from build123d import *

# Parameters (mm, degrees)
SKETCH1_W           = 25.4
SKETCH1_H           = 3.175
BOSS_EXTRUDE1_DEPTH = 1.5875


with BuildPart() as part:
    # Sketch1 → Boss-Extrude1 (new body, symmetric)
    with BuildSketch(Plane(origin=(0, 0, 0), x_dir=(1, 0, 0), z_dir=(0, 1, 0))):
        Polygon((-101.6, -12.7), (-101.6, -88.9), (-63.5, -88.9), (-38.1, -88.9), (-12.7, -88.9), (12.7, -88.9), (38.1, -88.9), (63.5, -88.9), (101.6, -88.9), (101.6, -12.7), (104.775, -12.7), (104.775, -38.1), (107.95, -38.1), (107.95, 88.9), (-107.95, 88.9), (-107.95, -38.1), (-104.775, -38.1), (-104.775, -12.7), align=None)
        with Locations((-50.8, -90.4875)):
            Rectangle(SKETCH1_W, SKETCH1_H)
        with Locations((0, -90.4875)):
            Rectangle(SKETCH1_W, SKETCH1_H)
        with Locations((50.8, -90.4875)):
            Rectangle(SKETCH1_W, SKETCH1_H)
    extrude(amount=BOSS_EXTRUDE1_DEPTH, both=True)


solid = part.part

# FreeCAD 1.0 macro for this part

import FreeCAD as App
import Part
import Sketcher
Q = App.Units.Quantity

doc = App.newDocument("Part")
body = doc.addObject("PartDesign::Body", "Body")

# Sketch on XZ plane
sketch1 = body.newObject("Sketcher::SketchObject", "Sketch")
sketch1.AttachmentSupport = (doc.getObject("XZ_Plane"), [""])
sketch1.MapMode = "FlatFace"
sketch1.addGeometry(Part.LineSegment(App.Vector(-101.6, 12.7, 0), App.Vector(-101.6, 88.9, 0)), False)
sketch1.addGeometry(Part.LineSegment(App.Vector(-101.6, 88.9, 0), App.Vector(-63.5, 88.9, 0)), False)
sketch1.addGeometry(Part.LineSegment(App.Vector(-63.5, 88.9, 0), App.Vector(-63.5, 92.1, 0)), False)
sketch1.addGeometry(Part.LineSegment(App.Vector(-63.5, 92.1, 0), App.Vector(-38.1, 92.1, 0)), False)
sketch1.addGeometry(Part.LineSegment(App.Vector(-38.1, 92.1, 0), App.Vector(-38.1, 88.9, 0)), False)
sketch1.addGeometry(Part.LineSegment(App.Vector(-38.1, 88.9, 0), App.Vector(-12.7, 88.9, 0)), False)
sketch1.addGeometry(Part.LineSegment(App.Vector(-12.7, 88.9, 0), App.Vector(-12.7, 92.1, 0)), False)
sketch1.addGeometry(Part.LineSegment(App.Vector(-12.7, 92.1, 0), App.Vector(12.7, 92.1, 0)), False)
sketch1.addGeometry(Part.LineSegment(App.Vector(12.7, 92.1, 0), App.Vector(12.7, 88.9, 0)), False)
sketch1.addGeometry(Part.LineSegment(App.Vector(12.7, 88.9, 0), App.Vector(38.1, 88.9, 0)), False)
sketch1.addGeometry(Part.LineSegment(App.Vector(38.1, 88.9, 0), App.Vector(38.1, 92.1, 0)), False)
sketch1.addGeometry(Part.LineSegment(App.Vector(38.1, 92.1, 0), App.Vector(63.5, 92.1, 0)), False)
sketch1.addGeometry(Part.LineSegment(App.Vector(63.5, 92.1, 0), App.Vector(63.5, 88.9, 0)), False)
sketch1.addGeometry(Part.LineSegment(App.Vector(63.5, 88.9, 0), App.Vector(101.6, 88.9, 0)), False)
sketch1.addGeometry(Part.LineSegment(App.Vector(101.6, 88.9, 0), App.Vector(101.6, 12.7, 0)), False)
sketch1.addGeometry(Part.LineSegment(App.Vector(101.6, 12.7, 0), App.Vector(104.8, 12.7, 0)), False)
sketch1.addGeometry(Part.LineSegment(App.Vector(104.8, 12.7, 0), App.Vector(104.8, 38.1, 0)), False)
sketch1.addGeometry(Part.LineSegment(App.Vector(104.8, 38.1, 0), App.Vector(108, 38.1, 0)), False)
sketch1.addGeometry(Part.LineSegment(App.Vector(108, 38.1, 0), App.Vector(108, -88.9, 0)), False)
sketch1.addGeometry(Part.LineSegment(App.Vector(108, -88.9, 0), App.Vector(-108, -88.9, 0)), False)
sketch1.addGeometry(Part.LineSegment(App.Vector(-108, -88.9, 0), App.Vector(-108, 38.1, 0)), False)
sketch1.addGeometry(Part.LineSegment(App.Vector(-108, 38.1, 0), App.Vector(-104.8, 38.1, 0)), False)
sketch1.addGeometry(Part.LineSegment(App.Vector(-104.8, 38.1, 0), App.Vector(-104.8, 12.7, 0)), False)
sketch1.addGeometry(Part.LineSegment(App.Vector(-104.8, 12.7, 0), App.Vector(-101.6, 12.7, 0)), False)
sketch1.addConstraint(Sketcher.Constraint("Coincident", 0, 2, 1, 1))
sketch1.addConstraint(Sketcher.Constraint("Coincident", 1, 2, 2, 1))
sketch1.addConstraint(Sketcher.Constraint("Coincident", 2, 2, 3, 1))
sketch1.addConstraint(Sketcher.Constraint("Coincident", 3, 2, 4, 1))
sketch1.addConstraint(Sketcher.Constraint("Coincident", 4, 2, 5, 1))
sketch1.addConstraint(Sketcher.Constraint("Coincident", 5, 2, 6, 1))
sketch1.addConstraint(Sketcher.Constraint("Coincident", 6, 2, 7, 1))
sketch1.addConstraint(Sketcher.Constraint("Coincident", 7, 2, 8, 1))
sketch1.addConstraint(Sketcher.Constraint("Coincident", 8, 2, 9, 1))
sketch1.addConstraint(Sketcher.Constraint("Coincident", 9, 2, 10, 1))
sketch1.addConstraint(Sketcher.Constraint("Coincident", 10, 2, 11, 1))
sketch1.addConstraint(Sketcher.Constraint("Coincident", 11, 2, 12, 1))
sketch1.addConstraint(Sketcher.Constraint("Coincident", 12, 2, 13, 1))
sketch1.addConstraint(Sketcher.Constraint("Coincident", 13, 2, 14, 1))
sketch1.addConstraint(Sketcher.Constraint("Coincident", 14, 2, 15, 1))
sketch1.addConstraint(Sketcher.Constraint("Coincident", 15, 2, 16, 1))
sketch1.addConstraint(Sketcher.Constraint("Coincident", 16, 2, 17, 1))
sketch1.addConstraint(Sketcher.Constraint("Coincident", 17, 2, 18, 1))
sketch1.addConstraint(Sketcher.Constraint("Coincident", 18, 2, 19, 1))
sketch1.addConstraint(Sketcher.Constraint("Coincident", 19, 2, 20, 1))
sketch1.addConstraint(Sketcher.Constraint("Coincident", 20, 2, 21, 1))
sketch1.addConstraint(Sketcher.Constraint("Coincident", 21, 2, 22, 1))
sketch1.addConstraint(Sketcher.Constraint("Coincident", 22, 2, 23, 1))
sketch1.addConstraint(Sketcher.Constraint("Coincident", 23, 2, 0, 1))
sketch1.addConstraint(Sketcher.Constraint("Vertical", 0))
sketch1.addConstraint(Sketcher.Constraint("Horizontal", 1))
sketch1.addConstraint(Sketcher.Constraint("Vertical", 2))
sketch1.addConstraint(Sketcher.Constraint("Horizontal", 3))
sketch1.addConstraint(Sketcher.Constraint("Vertical", 4))
sketch1.addConstraint(Sketcher.Constraint("Horizontal", 5))
sketch1.addConstraint(Sketcher.Constraint("Vertical", 6))
sketch1.addConstraint(Sketcher.Constraint("Horizontal", 7))
sketch1.addConstraint(Sketcher.Constraint("Vertical", 8))
sketch1.addConstraint(Sketcher.Constraint("Horizontal", 9))
sketch1.addConstraint(Sketcher.Constraint("Vertical", 10))
sketch1.addConstraint(Sketcher.Constraint("Horizontal", 11))
sketch1.addConstraint(Sketcher.Constraint("Vertical", 12))
sketch1.addConstraint(Sketcher.Constraint("Horizontal", 13))
sketch1.addConstraint(Sketcher.Constraint("Vertical", 14))
sketch1.addConstraint(Sketcher.Constraint("Horizontal", 15))
sketch1.addConstraint(Sketcher.Constraint("Vertical", 16))
sketch1.addConstraint(Sketcher.Constraint("Horizontal", 17))
sketch1.addConstraint(Sketcher.Constraint("Vertical", 18))
sketch1.addConstraint(Sketcher.Constraint("Horizontal", 19))
sketch1.addConstraint(Sketcher.Constraint("Vertical", 20))
sketch1.addConstraint(Sketcher.Constraint("Horizontal", 21))
sketch1.addConstraint(Sketcher.Constraint("Vertical", 22))
sketch1.addConstraint(Sketcher.Constraint("Horizontal", 23))
sketch1.addConstraint(Sketcher.Constraint("Symmetric", 5, 2, 8, 2, -2))
sketch1.addConstraint(Sketcher.Constraint("Symmetric", 3, 2, 10, 2, -2))
sketch1.addConstraint(Sketcher.Constraint("Symmetric", 1, 2, 12, 2, -2))
sketch1.addConstraint(Sketcher.Constraint("Symmetric", 17, 2, 20, 2, -2))
sketch1.addConstraint(Sketcher.Constraint("Symmetric", 15, 2, 22, 2, -2))
sketch1.addConstraint(Sketcher.Constraint("Horizontal", 1, 2, 4, 2))
sketch1.addConstraint(Sketcher.Constraint("Horizontal", 3, 2, 6, 2))
sketch1.addConstraint(Sketcher.Constraint("Equal", 3, 5))
sketch1.addConstraint(Sketcher.Constraint("Equal", 5, 7))
sketch1.addConstraint(Sketcher.Constraint("Equal", 1, 13))
sketch1.addConstraint(Sketcher.Constraint("Equal", 15, 17))
sketch1.addConstraint(Sketcher.Constraint("Equal", 23, 2))
sketch1.addConstraint(Sketcher.Constraint("Equal", 11, 16))
sketch1.addConstraint(Sketcher.Constraint("DistanceX", 3, 1, 3, 2, Q("1 in")))
sketch1.addConstraint(Sketcher.Constraint("DistanceY", 0, 1, 0, 2, Q("3 in")))
sketch1.addConstraint(Sketcher.Constraint("DistanceY", 18, 2, 18, 1, Q("5 in")))
sketch1.addConstraint(Sketcher.Constraint("DistanceX", 1, 1, 1, 2, Q("1.5 in")))
sketch1.addConstraint(Sketcher.Constraint("DistanceX", 19, 2, 19, 1, Q("8.5 in")))
sketch1.addConstraint(Sketcher.Constraint("DistanceY", -1, 1, 0, 2, Q("3.5 in")))
pad1 = body.newObject("PartDesign::Pad", "Pad")
pad1.Profile = sketch1
pad1.Length = Q("0.125 in")
pad1.Midplane = True

doc.recompute()
